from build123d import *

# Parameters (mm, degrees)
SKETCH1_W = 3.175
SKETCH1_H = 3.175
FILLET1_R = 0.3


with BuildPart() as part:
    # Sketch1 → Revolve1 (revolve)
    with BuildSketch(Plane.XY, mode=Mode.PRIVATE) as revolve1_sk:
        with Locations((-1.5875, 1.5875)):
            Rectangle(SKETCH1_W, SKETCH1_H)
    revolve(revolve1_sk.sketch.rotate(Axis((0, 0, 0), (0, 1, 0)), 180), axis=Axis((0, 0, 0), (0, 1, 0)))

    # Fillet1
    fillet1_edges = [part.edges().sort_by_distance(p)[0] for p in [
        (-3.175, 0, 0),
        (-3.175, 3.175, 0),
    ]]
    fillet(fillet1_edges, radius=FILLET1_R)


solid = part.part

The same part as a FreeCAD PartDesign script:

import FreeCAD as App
import Part
import Sketcher
Q = App.Units.Quantity


def edges_at(feature, points):
    """Names of the edges that pass closest to the given points."""
    edges = feature.Shape.Edges
    near = lambda p: min(range(len(edges)), key=lambda i: edges[i].distToShape(Part.Vertex(*p))[0])
    return sorted({f"Edge{near(p) + 1}" for p in points})


def add_polygon(sketch, points):
    """Adds a closed chain of lines whose ends are joined by coincident constraints."""
    first, n = sketch.GeometryCount, len(points)
    for a, b in zip(points, points[1:] + points[:1]):
        sketch.addGeometry(Part.LineSegment(App.Vector(*a, 0), App.Vector(*b, 0)), False)
    for i in range(n):
        sketch.addConstraint(Sketcher.Constraint("Coincident", first + i, 2, first + (i + 1) % n, 1))

doc = App.newDocument("Part")
body = doc.addObject("PartDesign::Body", "Body")

# Sketch on XY plane
sketch1 = body.newObject("Sketcher::SketchObject", "Sketch")
sketch1.AttachmentSupport = (doc.getObject("XY_Plane"), [""])
sketch1.MapMode = "FlatFace"
add_polygon(sketch1, [(-3.175, 3.175), (-3.175, 0), (0, 0), (0, 3.175)])  # lines 0-3
sketch1.addConstraint([
    Sketcher.Constraint("Vertical", 0),
    Sketcher.Constraint("Horizontal", 1),
    Sketcher.Constraint("Vertical", 2),
    Sketcher.Constraint("Horizontal", 3),
    Sketcher.Constraint("Coincident", 1, 2, -1, 1),
    Sketcher.Constraint("Equal", 3, 0),
    Sketcher.Constraint("DistanceX", 1, 1, 1, 2, Q("3.175 mm")),
])
revolution = body.newObject("PartDesign::Revolution", "Revolution")
revolution.Profile = sketch1
revolution.ReferenceAxis = (sketch1, ["V_Axis"])
revolution.Angle = 360
doc.recompute()

fillet = body.newObject("PartDesign::Fillet", "Fillet")
fillet.Base = (revolution, edges_at(revolution, [(-3.175, 0, 0), (-3.175, 3.175, 0)]))
fillet.Radius = 0.3

doc.recompute()
